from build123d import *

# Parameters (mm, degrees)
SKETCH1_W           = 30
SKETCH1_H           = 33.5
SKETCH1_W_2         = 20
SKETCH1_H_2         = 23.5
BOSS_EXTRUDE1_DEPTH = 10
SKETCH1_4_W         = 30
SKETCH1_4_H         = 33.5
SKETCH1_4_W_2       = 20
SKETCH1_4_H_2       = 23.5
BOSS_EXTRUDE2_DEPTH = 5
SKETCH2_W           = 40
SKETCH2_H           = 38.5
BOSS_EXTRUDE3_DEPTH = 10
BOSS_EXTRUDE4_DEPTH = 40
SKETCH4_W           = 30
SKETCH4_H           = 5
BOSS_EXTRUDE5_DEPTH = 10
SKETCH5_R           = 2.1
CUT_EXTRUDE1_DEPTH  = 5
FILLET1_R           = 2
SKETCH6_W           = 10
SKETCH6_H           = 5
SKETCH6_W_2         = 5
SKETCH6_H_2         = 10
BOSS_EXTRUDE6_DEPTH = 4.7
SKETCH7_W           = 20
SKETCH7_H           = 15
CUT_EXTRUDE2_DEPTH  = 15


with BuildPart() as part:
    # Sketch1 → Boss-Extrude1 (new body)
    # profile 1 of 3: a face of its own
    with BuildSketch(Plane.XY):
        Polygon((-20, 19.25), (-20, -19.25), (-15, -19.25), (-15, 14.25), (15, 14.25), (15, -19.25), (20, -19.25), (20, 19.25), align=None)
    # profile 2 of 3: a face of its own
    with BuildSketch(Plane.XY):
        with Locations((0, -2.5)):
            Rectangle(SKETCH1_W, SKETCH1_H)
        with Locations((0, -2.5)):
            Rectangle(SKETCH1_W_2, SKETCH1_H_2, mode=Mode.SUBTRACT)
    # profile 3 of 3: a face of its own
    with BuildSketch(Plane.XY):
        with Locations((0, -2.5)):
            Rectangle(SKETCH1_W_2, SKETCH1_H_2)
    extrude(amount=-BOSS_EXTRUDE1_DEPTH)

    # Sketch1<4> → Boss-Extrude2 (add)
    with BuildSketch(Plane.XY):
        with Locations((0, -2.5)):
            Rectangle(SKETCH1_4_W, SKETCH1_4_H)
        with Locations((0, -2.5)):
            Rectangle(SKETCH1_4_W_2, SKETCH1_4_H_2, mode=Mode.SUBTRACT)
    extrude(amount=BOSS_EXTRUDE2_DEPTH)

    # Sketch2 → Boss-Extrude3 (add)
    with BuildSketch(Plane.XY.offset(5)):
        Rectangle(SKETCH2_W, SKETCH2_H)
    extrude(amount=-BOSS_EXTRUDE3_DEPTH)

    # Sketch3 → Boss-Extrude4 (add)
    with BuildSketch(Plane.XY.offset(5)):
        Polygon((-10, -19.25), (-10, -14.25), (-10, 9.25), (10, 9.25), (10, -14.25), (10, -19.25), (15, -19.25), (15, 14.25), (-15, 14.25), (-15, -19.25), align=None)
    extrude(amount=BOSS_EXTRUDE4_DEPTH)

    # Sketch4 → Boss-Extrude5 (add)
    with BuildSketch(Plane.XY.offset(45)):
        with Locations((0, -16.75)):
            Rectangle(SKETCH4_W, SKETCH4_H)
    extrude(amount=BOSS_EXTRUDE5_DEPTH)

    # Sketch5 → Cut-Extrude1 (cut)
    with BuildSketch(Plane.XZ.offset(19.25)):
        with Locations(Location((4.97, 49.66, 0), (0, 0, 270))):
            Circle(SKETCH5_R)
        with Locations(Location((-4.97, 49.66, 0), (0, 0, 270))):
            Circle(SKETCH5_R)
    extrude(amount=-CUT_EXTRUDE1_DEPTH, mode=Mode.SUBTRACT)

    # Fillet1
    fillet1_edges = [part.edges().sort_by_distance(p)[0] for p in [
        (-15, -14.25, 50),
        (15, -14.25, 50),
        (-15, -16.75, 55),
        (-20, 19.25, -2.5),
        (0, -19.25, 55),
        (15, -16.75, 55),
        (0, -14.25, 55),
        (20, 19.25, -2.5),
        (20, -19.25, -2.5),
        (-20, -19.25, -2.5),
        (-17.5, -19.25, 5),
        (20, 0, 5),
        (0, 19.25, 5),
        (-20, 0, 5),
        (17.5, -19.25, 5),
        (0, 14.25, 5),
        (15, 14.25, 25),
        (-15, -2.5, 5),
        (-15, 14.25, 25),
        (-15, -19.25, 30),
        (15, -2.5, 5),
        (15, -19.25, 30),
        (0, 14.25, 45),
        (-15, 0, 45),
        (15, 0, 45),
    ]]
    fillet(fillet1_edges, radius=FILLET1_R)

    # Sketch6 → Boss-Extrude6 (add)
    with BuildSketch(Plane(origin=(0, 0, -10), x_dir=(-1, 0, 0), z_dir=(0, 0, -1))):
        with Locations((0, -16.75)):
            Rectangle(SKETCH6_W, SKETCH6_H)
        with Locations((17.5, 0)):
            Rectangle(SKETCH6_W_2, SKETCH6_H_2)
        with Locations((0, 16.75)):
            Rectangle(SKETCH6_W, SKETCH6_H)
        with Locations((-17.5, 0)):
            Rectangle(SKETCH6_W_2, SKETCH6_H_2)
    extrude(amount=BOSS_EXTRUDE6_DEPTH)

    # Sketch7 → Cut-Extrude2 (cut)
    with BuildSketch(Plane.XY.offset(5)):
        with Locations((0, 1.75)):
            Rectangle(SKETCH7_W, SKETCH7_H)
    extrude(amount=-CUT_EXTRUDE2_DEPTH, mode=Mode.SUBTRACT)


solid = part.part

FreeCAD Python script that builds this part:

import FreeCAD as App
import Part
import Sketcher


def edges_at(feature, points):
    """Names of the edges that pass closest to the given points."""
    edges = feature.Shape.Edges
    near = lambda p: min(range(len(edges)), key=lambda i: edges[i].distToShape(Part.Vertex(*p))[0])
    return sorted({f"Edge{near(p) + 1}" for p in points})

doc = App.newDocument("Part")
params = doc.addObject("Spreadsheet::Sheet", "Params")
for row, (alias, value) in enumerate([
    ("sketch1_width", "40 mm"),
    ("sketch1_height", "38.5 mm"),
    ("pad1_length", "10 mm"),
    ("sketch2_width", "30 mm"),
    ("sketch2_width2", "20 mm"),
    ("sketch2_height", "33.5 mm"),
    ("sketch2_height2", "23.5 mm"),
    ("pad2_length", "5 mm"),
    ("sketch3_width", "40 mm"),
    ("sketch3_height", "38.5 mm"),
    ("pad3_length", "10 mm"),
    ("sketch4_width", "20 mm"),
    ("sketch4_width2", "5 mm"),
    ("sketch4_height", "28.5 mm"),
    ("sketch4_height2", "33.5 mm"),
    ("pad4_length", "40 mm"),
    ("sketch5_width", "30 mm"),
    ("sketch5_height", "5 mm"),
    ("pad5_length", "10 mm"),
    ("sketch6_diameter", "4.2 mm"),
    ("pocket1_length", "5 mm"),
    ("fillet_radius", "2 mm"),
    ("sketch7_width", "10 mm"),
    ("sketch7_width2", "5 mm"),
    ("pad6_length", "4.7 mm"),
    ("sketch8_width", "20 mm"),
    ("sketch8_height", "15 mm"),
    ("pocket2_length", "15 mm"),
], start=1):
    params.set(f"A{row}", alias)
    params.set(f"B{row}", "=" + value)
    params.setAlias(f"B{row}", alias)

body = doc.addObject("PartDesign::Body", "Body")

# Sketch on XY plane
sketch1 = body.newObject("Sketcher::SketchObject", "Sketch")
sketch1.AttachmentSupport = (doc.getObject("XY_Plane"), [""])
sketch1.MapMode = "FlatFace"
sketch1.addGeometry(Part.LineSegment(App.Vector(-20, 19.25, 0), App.Vector(-20, -19.25, 0)), False)
sketch1.addGeometry(Part.LineSegment(App.Vector(-20, -19.25, 0), App.Vector(20, -19.25, 0)), False)
sketch1.addGeometry(Part.LineSegment(App.Vector(20, -19.25, 0), App.Vector(20, 19.25, 0)), False)
sketch1.addGeometry(Part.LineSegment(App.Vector(20, 19.25, 0), App.Vector(-20, 19.25, 0)), False)
sketch1.addConstraint(Sketcher.Constraint("Coincident", 0, 2, 1, 1))
sketch1.addConstraint(Sketcher.Constraint("Coincident", 1, 2, 2, 1))
sketch1.addConstraint(Sketcher.Constraint("Coincident", 2, 2, 3, 1))
sketch1.addConstraint(Sketcher.Constraint("Coincident", 3, 2, 0, 1))
sketch1.addConstraint(Sketcher.Constraint("Vertical", 0))
sketch1.addConstraint(Sketcher.Constraint("Horizontal", 1))
sketch1.addConstraint(Sketcher.Constraint("Vertical", 2))
sketch1.addConstraint(Sketcher.Constraint("Horizontal", 3))
sketch1.addConstraint(Sketcher.Constraint("Symmetric", 0, 2, 2, 2, -1, 1))
sketch1.addConstraint(Sketcher.Constraint("DistanceX", 1, 1, 1, 2, 40.0))
sketch1.addConstraint(Sketcher.Constraint("DistanceY", 0, 2, 0, 1, 38.5))
sketch1.setExpression("Constraints[9]", "Params.sketch1_width")
sketch1.setExpression("Constraints[10]", "Params.sketch1_height")
pad1 = body.newObject("PartDesign::Pad", "Pad")
pad1.Profile = sketch1
pad1.setExpression("Length", "Params.pad1_length")
pad1.Reversed = True

# Sketch on XY plane
sketch2 = body.newObject("Sketcher::SketchObject", "Sketch001")
sketch2.AttachmentSupport = (doc.getObject("XY_Plane"), [""])
sketch2.MapMode = "FlatFace"
sketch2.addGeometry(Part.LineSegment(App.Vector(-15, 14.25, 0), App.Vector(-15, -19.25, 0)), False)
sketch2.addGeometry(Part.LineSegment(App.Vector(-15, -19.25, 0), App.Vector(15, -19.25, 0)), False)
sketch2.addGeometry(Part.LineSegment(App.Vector(15, -19.25, 0), App.Vector(15, 14.25, 0)), False)
sketch2.addGeometry(Part.LineSegment(App.Vector(15, 14.25, 0), App.Vector(-15, 14.25, 0)), False)
sketch2.addGeometry(Part.LineSegment(App.Vector(10, -14.25, 0), App.Vector(-10, -14.25, 0)), False)
sketch2.addGeometry(Part.LineSegment(App.Vector(-10, -14.25, 0), App.Vector(-10, 9.25, 0)), False)
sketch2.addGeometry(Part.LineSegment(App.Vector(-10, 9.25, 0), App.Vector(10, 9.25, 0)), False)
sketch2.addGeometry(Part.LineSegment(App.Vector(10, 9.25, 0), App.Vector(10, -14.25, 0)), False)
sketch2.addConstraint(Sketcher.Constraint("Coincident", 0, 2, 1, 1))
sketch2.addConstraint(Sketcher.Constraint("Coincident", 1, 2, 2, 1))
sketch2.addConstraint(Sketcher.Constraint("Coincident", 2, 2, 3, 1))
sketch2.addConstraint(Sketcher.Constraint("Coincident", 3, 2, 0, 1))
sketch2.addConstraint(Sketcher.Constraint("Coincident", 4, 2, 5, 1))
sketch2.addConstraint(Sketcher.Constraint("Coincident", 5, 2, 6, 1))
sketch2.addConstraint(Sketcher.Constraint("Coincident", 6, 2, 7, 1))
sketch2.addConstraint(Sketcher.Constraint("Coincident", 7, 2, 4, 1))
sketch2.addConstraint(Sketcher.Constraint("Vertical", 0))
sketch2.addConstraint(Sketcher.Constraint("Horizontal", 1))
sketch2.addConstraint(Sketcher.Constraint("Vertical", 2))
sketch2.addConstraint(Sketcher.Constraint("Horizontal", 3))
sketch2.addConstraint(Sketcher.Constraint("Horizontal", 4))
sketch2.addConstraint(Sketcher.Constraint("Vertical", 5))
sketch2.addConstraint(Sketcher.Constraint("Horizontal", 6))
sketch2.addConstraint(Sketcher.Constraint("Vertical", 7))
sketch2.addConstraint(Sketcher.Constraint("DistanceX", 1, 1, 1, 2, 30.0))
sketch2.addConstraint(Sketcher.Constraint("DistanceX", 4, 2, 4, 1, 20.0))
sketch2.addConstraint(Sketcher.Constraint("DistanceY", 0, 2, 0, 1, 33.5))
sketch2.addConstraint(Sketcher.Constraint("DistanceY", 5, 1, 5, 2, 23.5))
sketch2.addConstraint(Sketcher.Constraint("DistanceX", 0, 2, -1, 1, 15.0))
sketch2.addConstraint(Sketcher.Constraint("DistanceX", 4, 2, -1, 1, 10.0))
sketch2.addConstraint(Sketcher.Constraint("DistanceY", 0, 2, 4, 2, 5.0))
sketch2.addConstraint(Sketcher.Constraint("DistanceY", 0, 2, -1, 1, 19.25))
sketch2.setExpression("Constraints[16]", "Params.sketch2_width")
sketch2.setExpression("Constraints[17]", "Params.sketch2_width2")
sketch2.setExpression("Constraints[18]", "Params.sketch2_height")
sketch2.setExpression("Constraints[19]", "Params.sketch2_height2")
pad2 = body.newObject("PartDesign::Pad", "Pad001")
pad2.Profile = sketch2
pad2.setExpression("Length", "Params.pad2_length")

# Sketch on XY plane
sketch3 = body.newObject("Sketcher::SketchObject", "Sketch002")
sketch3.AttachmentSupport = (doc.getObject("XY_Plane"), [""])
sketch3.MapMode = "FlatFace"
sketch3.AttachmentOffset = App.Placement(App.Vector(0, 0, 5), App.Rotation())
sketch3.addGeometry(Part.LineSegment(App.Vector(-20, 19.25, 0), App.Vector(-20, -19.25, 0)), False)
sketch3.addGeometry(Part.LineSegment(App.Vector(-20, -19.25, 0), App.Vector(20, -19.25, 0)), False)
sketch3.addGeometry(Part.LineSegment(App.Vector(20, -19.25, 0), App.Vector(20, 19.25, 0)), False)
sketch3.addGeometry(Part.LineSegment(App.Vector(20, 19.25, 0), App.Vector(-20, 19.25, 0)), False)
sketch3.addConstraint(Sketcher.Constraint("Coincident", 0, 2, 1, 1))
sketch3.addConstraint(Sketcher.Constraint("Coincident", 1, 2, 2, 1))
sketch3.addConstraint(Sketcher.Constraint("Coincident", 2, 2, 3, 1))
sketch3.addConstraint(Sketcher.Constraint("Coincident", 3, 2, 0, 1))
sketch3.addConstraint(Sketcher.Constraint("Vertical", 0))
sketch3.addConstraint(Sketcher.Constraint("Horizontal", 1))
sketch3.addConstraint(Sketcher.Constraint("Vertical", 2))
sketch3.addConstraint(Sketcher.Constraint("Horizontal", 3))
sketch3.addConstraint(Sketcher.Constraint("Symmetric", 0, 2, 2, 2, -1, 1))
sketch3.addConstraint(Sketcher.Constraint("DistanceX", 1, 1, 1, 2, 40.0))
sketch3.addConstraint(Sketcher.Constraint("DistanceY", 0, 2, 0, 1, 38.5))
sketch3.setExpression("Constraints[9]", "Params.sketch3_width")
sketch3.setExpression("Constraints[10]", "Params.sketch3_height")
pad3 = body.newObject("PartDesign::Pad", "Pad002")
pad3.Profile = sketch3
pad3.setExpression("Length", "Params.pad3_length")
pad3.Reversed = True

# Sketch on XY plane
sketch4 = body.newObject("Sketcher::SketchObject", "Sketch003")
sketch4.AttachmentSupport = (doc.getObject("XY_Plane"), [""])
sketch4.MapMode = "FlatFace"
sketch4.AttachmentOffset = App.Placement(App.Vector(0, 0, 5), App.Rotation())
sketch4.addGeometry(Part.LineSegment(App.Vector(-10, -19.25, 0), App.Vector(-10, 9.25, 0)), False)
sketch4.addGeometry(Part.LineSegment(App.Vector(-10, 9.25, 0), App.Vector(10, 9.25, 0)), False)
sketch4.addGeometry(Part.LineSegment(App.Vector(10, 9.25, 0), App.Vector(10, -19.25, 0)), False)
sketch4.addGeometry(Part.LineSegment(App.Vector(10, -19.25, 0), App.Vector(15, -19.25, 0)), False)
sketch4.addGeometry(Part.LineSegment(App.Vector(15, -19.25, 0), App.Vector(15, 14.25, 0)), False)
sketch4.addGeometry(Part.LineSegment(App.Vector(15, 14.25, 0), App.Vector(-15, 14.25, 0)), False)
sketch4.addGeometry(Part.LineSegment(App.Vector(-15, 14.25, 0), App.Vector(-15, -19.25, 0)), False)
sketch4.addGeometry(Part.LineSegment(App.Vector(-15, -19.25, 0), App.Vector(-10, -19.25, 0)), False)
sketch4.addConstraint(Sketcher.Constraint("Coincident", 0, 2, 1, 1))
sketch4.addConstraint(Sketcher.Constraint("Coincident", 1, 2, 2, 1))
sketch4.addConstraint(Sketcher.Constraint("Coincident", 2, 2, 3, 1))
sketch4.addConstraint(Sketcher.Constraint("Coincident", 3, 2, 4, 1))
sketch4.addConstraint(Sketcher.Constraint("Coincident", 4, 2, 5, 1))
sketch4.addConstraint(Sketcher.Constraint("Coincident", 5, 2, 6, 1))
sketch4.addConstraint(Sketcher.Constraint("Coincident", 6, 2, 7, 1))
sketch4.addConstraint(Sketcher.Constraint("Coincident", 7, 2, 0, 1))
sketch4.addConstraint(Sketcher.Constraint("Vertical", 0))
sketch4.addConstraint(Sketcher.Constraint("Horizontal", 1))
sketch4.addConstraint(Sketcher.Constraint("Vertical", 2))
sketch4.addConstraint(Sketcher.Constraint("Horizontal", 3))
sketch4.addConstraint(Sketcher.Constraint("Vertical", 4))
sketch4.addConstraint(Sketcher.Constraint("Horizontal", 5))
sketch4.addConstraint(Sketcher.Constraint("Vertical", 6))
sketch4.addConstraint(Sketcher.Constraint("Horizontal", 7))
sketch4.addConstraint(Sketcher.Constraint("Symmetric", 3, 2, 6, 2, -2))
sketch4.addConstraint(Sketcher.Constraint("Equal", 3, 7))
sketch4.addConstraint(Sketcher.Constraint("DistanceX", 1, 1, 1, 2, 20.0))
sketch4.addConstraint(Sketcher.Constraint("DistanceX", 3, 1, 3, 2, 5.0))
sketch4.addConstraint(Sketcher.Constraint("DistanceY", 0, 1, 0, 2, 28.5))
sketch4.addConstraint(Sketcher.Constraint("DistanceY", 4, 1, 4, 2, 33.5))
sketch4.addConstraint(Sketcher.Constraint("DistanceY", -1, 1, 0, 2, 9.25))
sketch4.setExpression("Constraints[18]", "Params.sketch4_width")
sketch4.setExpression("Constraints[19]", "Params.sketch4_width2")
sketch4.setExpression("Constraints[20]", "Params.sketch4_height")
sketch4.setExpression("Constraints[21]", "Params.sketch4_height2")
pad4 = body.newObject("PartDesign::Pad", "Pad003")
pad4.Profile = sketch4
pad4.setExpression("Length", "Params.pad4_length")

# Sketch on XY plane
sketch5 = body.newObject("Sketcher::SketchObject", "Sketch004")
sketch5.AttachmentSupport = (doc.getObject("XY_Plane"), [""])
sketch5.MapMode = "FlatFace"
sketch5.AttachmentOffset = App.Placement(App.Vector(0, 0, 45), App.Rotation())
sketch5.addGeometry(Part.LineSegment(App.Vector(-15, -14.25, 0), App.Vector(-15, -19.25, 0)), False)
sketch5.addGeometry(Part.LineSegment(App.Vector(-15, -19.25, 0), App.Vector(15, -19.25, 0)), False)
sketch5.addGeometry(Part.LineSegment(App.Vector(15, -19.25, 0), App.Vector(15, -14.25, 0)), False)
sketch5.addGeometry(Part.LineSegment(App.Vector(15, -14.25, 0), App.Vector(-15, -14.25, 0)), False)
sketch5.addConstraint(Sketcher.Constraint("Coincident", 0, 2, 1, 1))
sketch5.addConstraint(Sketcher.Constraint("Coincident", 1, 2, 2, 1))
sketch5.addConstraint(Sketcher.Constraint("Coincident", 2, 2, 3, 1))
sketch5.addConstraint(Sketcher.Constraint("Coincident", 3, 2, 0, 1))
sketch5.addConstraint(Sketcher.Constraint("Vertical", 0))
sketch5.addConstraint(Sketcher.Constraint("Horizontal", 1))
sketch5.addConstraint(Sketcher.Constraint("Vertical", 2))
sketch5.addConstraint(Sketcher.Constraint("Horizontal", 3))
sketch5.addConstraint(Sketcher.Constraint("DistanceX", 1, 1, 1, 2, 30.0))
sketch5.addConstraint(Sketcher.Constraint("DistanceY", 0, 2, 0, 1, 5.0))
sketch5.addConstraint(Sketcher.Constraint("DistanceX", 0, 2, -1, 1, 15.0))
sketch5.addConstraint(Sketcher.Constraint("DistanceY", 0, 2, -1, 1, 19.25))
sketch5.setExpression("Constraints[8]", "Params.sketch5_width")
sketch5.setExpression("Constraints[9]", "Params.sketch5_height")
pad5 = body.newObject("PartDesign::Pad", "Pad004")
pad5.Profile = sketch5
pad5.setExpression("Length", "Params.pad5_length")

# Sketch on XZ plane
sketch6 = body.newObject("Sketcher::SketchObject", "Sketch005")
sketch6.AttachmentSupport = (doc.getObject("XZ_Plane"), [""])
sketch6.MapMode = "FlatFace"
sketch6.AttachmentOffset = App.Placement(App.Vector(0, 0, 19.25), App.Rotation())
sketch6.addGeometry(Part.Circle(App.Vector(4.97, 49.66, 0), App.Vector(0, 0, 1), 2.1), False)
sketch6.addGeometry(Part.Circle(App.Vector(-4.97, 49.66, 0), App.Vector(0, 0, 1), 2.1), False)
sketch6.addConstraint(Sketcher.Constraint("Equal", 0, 1))
sketch6.addConstraint(Sketcher.Constraint("Symmetric", 0, 3, 1, 3, -2))
sketch6.addConstraint(Sketcher.Constraint("Diameter", 0, 4.2))
sketch6.addConstraint(Sketcher.Constraint("DistanceX", -1, 1, 0, 3, 4.97))
sketch6.addConstraint(Sketcher.Constraint("DistanceY", -1, 1, 0, 3, 49.66))
sketch6.setExpression("Constraints[2]", "Params.sketch6_diameter")
pocket1 = body.newObject("PartDesign::Pocket", "Pocket")
pocket1.Profile = sketch6
pocket1.setExpression("Length", "Params.pocket1_length")
doc.recompute()

fillet = body.newObject("PartDesign::Fillet", "Fillet")
fillet.Base = (pocket1, edges_at(pocket1, [
    (-15, -14.25, 50),
    (15, -14.25, 50),
    (-15, -16.75, 55),
    (-20, 19.25, -2.5),
    (0, -19.25, 55),
    (15, -16.75, 55),
    (0, -14.25, 55),
    (20, 19.25, -2.5),
    (20, -19.25, -2.5),
    (-20, -19.25, -2.5),
    (-17.5, -19.25, 5),
    (20, 0, 5),
    (0, 19.25, 5),
    (-20, 0, 5),
    (17.5, -19.25, 5),
    (0, 14.25, 5),
    (15, 14.25, 25),
    (-15, -2.5, 5),
    (-15, 14.25, 25),
    (-15, -19.25, 30),
    (15, -2.5, 5),
    (15, -19.25, 30),
    (0, 14.25, 45),
    (-15, 0, 45),
    (15, 0, 45),
]))
fillet.setExpression("Radius", "Params.fillet_radius")

# Sketch on XY plane
sketch7 = body.newObject("Sketcher::SketchObject", "Sketch006")
sketch7.AttachmentSupport = (doc.getObject("XY_Plane"), [""])
sketch7.MapMode = "FlatFace"
sketch7.AttachmentOffset = App.Placement(App.Vector(0, 0, -10), App.Rotation())
sketch7.addGeometry(Part.LineSegment(App.Vector(5, -14.25, 0), App.Vector(5, -19.25, 0)), False)
sketch7.addGeometry(Part.LineSegment(App.Vector(5, -19.25, 0), App.Vector(-5, -19.25, 0)), False)
sketch7.addGeometry(Part.LineSegment(App.Vector(-5, -19.25, 0), App.Vector(-5, -14.25, 0)), False)
sketch7.addGeometry(Part.LineSegment(App.Vector(-5, -14.25, 0), App.Vector(5, -14.25, 0)), False)
sketch7.addGeometry(Part.LineSegment(App.Vector(-15, 5, 0), App.Vector(-15, -5, 0)), False)
sketch7.addGeometry(Part.LineSegment(App.Vector(-15, -5, 0), App.Vector(-20, -5, 0)), False)
sketch7.addGeometry(Part.LineSegment(App.Vector(-20, -5, 0), App.Vector(-20, 5, 0)), False)
sketch7.addGeometry(Part.LineSegment(App.Vector(-20, 5, 0), App.Vector(-15, 5, 0)), False)
sketch7.addGeometry(Part.LineSegment(App.Vector(5, 19.25, 0), App.Vector(5, 14.25, 0)), False)
sketch7.addGeometry(Part.LineSegment(App.Vector(5, 14.25, 0), App.Vector(-5, 14.25, 0)), False)
sketch7.addGeometry(Part.LineSegment(App.Vector(-5, 14.25, 0), App.Vector(-5, 19.25, 0)), False)
sketch7.addGeometry(Part.LineSegment(App.Vector(-5, 19.25, 0), App.Vector(5, 19.25, 0)), False)
sketch7.addGeometry(Part.LineSegment(App.Vector(20, 5, 0), App.Vector(20, -5, 0)), False)
sketch7.addGeometry(Part.LineSegment(App.Vector(20, -5, 0), App.Vector(15, -5, 0)), False)
sketch7.addGeometry(Part.LineSegment(App.Vector(15, -5, 0), App.Vector(15, 5, 0)), False)
sketch7.addGeometry(Part.LineSegment(App.Vector(15, 5, 0), App.Vector(20, 5, 0)), False)
sketch7.addConstraint(Sketcher.Constraint("Coincident", 0, 2, 1, 1))
sketch7.addConstraint(Sketcher.Constraint("Coincident", 1, 2, 2, 1))
sketch7.addConstraint(Sketcher.Constraint("Coincident", 2, 2, 3, 1))
sketch7.addConstraint(Sketcher.Constraint("Coincident", 3, 2, 0, 1))
sketch7.addConstraint(Sketcher.Constraint("Coincident", 4, 2, 5, 1))
sketch7.addConstraint(Sketcher.Constraint("Coincident", 5, 2, 6, 1))
sketch7.addConstraint(Sketcher.Constraint("Coincident", 6, 2, 7, 1))
sketch7.addConstraint(Sketcher.Constraint("Coincident", 7, 2, 4, 1))
sketch7.addConstraint(Sketcher.Constraint("Coincident", 8, 2, 9, 1))
sketch7.addConstraint(Sketcher.Constraint("Coincident", 9, 2, 10, 1))
sketch7.addConstraint(Sketcher.Constraint("Coincident", 10, 2, 11, 1))
sketch7.addConstraint(Sketcher.Constraint("Coincident", 11, 2, 8, 1))
sketch7.addConstraint(Sketcher.Constraint("Coincident", 12, 2, 13, 1))
sketch7.addConstraint(Sketcher.Constraint("Coincident", 13, 2, 14, 1))
sketch7.addConstraint(Sketcher.Constraint("Coincident", 14, 2, 15, 1))
sketch7.addConstraint(Sketcher.Constraint("Coincident", 15, 2, 12, 1))
sketch7.addConstraint(Sketcher.Constraint("Vertical", 0))
sketch7.addConstraint(Sketcher.Constraint("Horizontal", 1))
sketch7.addConstraint(Sketcher.Constraint("Vertical", 2))
sketch7.addConstraint(Sketcher.Constraint("Horizontal", 3))
sketch7.addConstraint(Sketcher.Constraint("Vertical", 4))
sketch7.addConstraint(Sketcher.Constraint("Horizontal", 5))
sketch7.addConstraint(Sketcher.Constraint("Vertical", 6))
sketch7.addConstraint(Sketcher.Constraint("Horizontal", 7))
sketch7.addConstraint(Sketcher.Constraint("Vertical", 8))
sketch7.addConstraint(Sketcher.Constraint("Horizontal", 9))
sketch7.addConstraint(Sketcher.Constraint("Vertical", 10))
sketch7.addConstraint(Sketcher.Constraint("Horizontal", 11))
sketch7.addConstraint(Sketcher.Constraint("Vertical", 12))
sketch7.addConstraint(Sketcher.Constraint("Horizontal", 13))
sketch7.addConstraint(Sketcher.Constraint("Vertical", 14))
sketch7.addConstraint(Sketcher.Constraint("Horizontal", 15))
sketch7.addConstraint(Sketcher.Constraint("Symmetric", 2, 2, 8, 2, -1, 1))
sketch7.addConstraint(Sketcher.Constraint("Symmetric", 0, 2, 10, 2, -1, 1))
sketch7.addConstraint(Sketcher.Constraint("Symmetric", 6, 2, 12, 2, -1, 1))
sketch7.addConstraint(Sketcher.Constraint("Symmetric", 4, 2, 14, 2, -1, 1))
sketch7.addConstraint(Sketcher.Constraint("Horizontal", 5, 2, 12, 2))
sketch7.addConstraint(Sketcher.Constraint("Vertical", 3, 2, 8, 2))
sketch7.addConstraint(Sketcher.Constraint("Equal", 15, 0))
sketch7.addConstraint(Sketcher.Constraint("Equal", 11, 4))
sketch7.addConstraint(Sketcher.Constraint("DistanceX", 1, 2, 1, 1, 10.0))
sketch7.addConstraint(Sketcher.Constraint("DistanceX", 5, 2, 5, 1, 5.0))
sketch7.addConstraint(Sketcher.Constraint("DistanceX", 4, 2, -1, 1, 15.0))
sketch7.addConstraint(Sketcher.Constraint("DistanceY", 3, 2, 8, 2, 28.5))
sketch7.setExpression("Constraints[40]", "Params.sketch7_width")
sketch7.setExpression("Constraints[41]", "Params.sketch7_width2")
pad6 = body.newObject("PartDesign::Pad", "Pad005")
pad6.Profile = sketch7
pad6.setExpression("Length", "Params.pad6_length")
pad6.Reversed = True

# Sketch on XY plane
sketch8 = body.newObject("Sketcher::SketchObject", "Sketch007")
sketch8.AttachmentSupport = (doc.getObject("XY_Plane"), [""])
sketch8.MapMode = "FlatFace"
sketch8.AttachmentOffset = App.Placement(App.Vector(0, 0, 5), App.Rotation())
sketch8.addGeometry(Part.LineSegment(App.Vector(-10, 9.25, 0), App.Vector(-10, -5.75, 0)), False)
sketch8.addGeometry(Part.LineSegment(App.Vector(-10, -5.75, 0), App.Vector(10, -5.75, 0)), False)
sketch8.addGeometry(Part.LineSegment(App.Vector(10, -5.75, 0), App.Vector(10, 9.25, 0)), False)
sketch8.addGeometry(Part.LineSegment(App.Vector(10, 9.25, 0), App.Vector(-10, 9.25, 0)), False)
sketch8.addConstraint(Sketcher.Constraint("Coincident", 0, 2, 1, 1))
sketch8.addConstraint(Sketcher.Constraint("Coincident", 1, 2, 2, 1))
sketch8.addConstraint(Sketcher.Constraint("Coincident", 2, 2, 3, 1))
sketch8.addConstraint(Sketcher.Constraint("Coincident", 3, 2, 0, 1))
sketch8.addConstraint(Sketcher.Constraint("Vertical", 0))
sketch8.addConstraint(Sketcher.Constraint("Horizontal", 1))
sketch8.addConstraint(Sketcher.Constraint("Vertical", 2))
sketch8.addConstraint(Sketcher.Constraint("Horizontal", 3))
sketch8.addConstraint(Sketcher.Constraint("DistanceX", 1, 1, 1, 2, 20.0))
sketch8.addConstraint(Sketcher.Constraint("DistanceY", 0, 2, 0, 1, 15.0))
sketch8.addConstraint(Sketcher.Constraint("DistanceX", 0, 2, -1, 1, 10.0))
sketch8.addConstraint(Sketcher.Constraint("DistanceY", 0, 2, -1, 1, 5.75))
sketch8.setExpression("Constraints[8]", "Params.sketch8_width")
sketch8.setExpression("Constraints[9]", "Params.sketch8_height")
pocket2 = body.newObject("PartDesign::Pocket", "Pocket001")
pocket2.Profile = sketch8
pocket2.setExpression("Length", "Params.pocket2_length")

doc.recompute()
